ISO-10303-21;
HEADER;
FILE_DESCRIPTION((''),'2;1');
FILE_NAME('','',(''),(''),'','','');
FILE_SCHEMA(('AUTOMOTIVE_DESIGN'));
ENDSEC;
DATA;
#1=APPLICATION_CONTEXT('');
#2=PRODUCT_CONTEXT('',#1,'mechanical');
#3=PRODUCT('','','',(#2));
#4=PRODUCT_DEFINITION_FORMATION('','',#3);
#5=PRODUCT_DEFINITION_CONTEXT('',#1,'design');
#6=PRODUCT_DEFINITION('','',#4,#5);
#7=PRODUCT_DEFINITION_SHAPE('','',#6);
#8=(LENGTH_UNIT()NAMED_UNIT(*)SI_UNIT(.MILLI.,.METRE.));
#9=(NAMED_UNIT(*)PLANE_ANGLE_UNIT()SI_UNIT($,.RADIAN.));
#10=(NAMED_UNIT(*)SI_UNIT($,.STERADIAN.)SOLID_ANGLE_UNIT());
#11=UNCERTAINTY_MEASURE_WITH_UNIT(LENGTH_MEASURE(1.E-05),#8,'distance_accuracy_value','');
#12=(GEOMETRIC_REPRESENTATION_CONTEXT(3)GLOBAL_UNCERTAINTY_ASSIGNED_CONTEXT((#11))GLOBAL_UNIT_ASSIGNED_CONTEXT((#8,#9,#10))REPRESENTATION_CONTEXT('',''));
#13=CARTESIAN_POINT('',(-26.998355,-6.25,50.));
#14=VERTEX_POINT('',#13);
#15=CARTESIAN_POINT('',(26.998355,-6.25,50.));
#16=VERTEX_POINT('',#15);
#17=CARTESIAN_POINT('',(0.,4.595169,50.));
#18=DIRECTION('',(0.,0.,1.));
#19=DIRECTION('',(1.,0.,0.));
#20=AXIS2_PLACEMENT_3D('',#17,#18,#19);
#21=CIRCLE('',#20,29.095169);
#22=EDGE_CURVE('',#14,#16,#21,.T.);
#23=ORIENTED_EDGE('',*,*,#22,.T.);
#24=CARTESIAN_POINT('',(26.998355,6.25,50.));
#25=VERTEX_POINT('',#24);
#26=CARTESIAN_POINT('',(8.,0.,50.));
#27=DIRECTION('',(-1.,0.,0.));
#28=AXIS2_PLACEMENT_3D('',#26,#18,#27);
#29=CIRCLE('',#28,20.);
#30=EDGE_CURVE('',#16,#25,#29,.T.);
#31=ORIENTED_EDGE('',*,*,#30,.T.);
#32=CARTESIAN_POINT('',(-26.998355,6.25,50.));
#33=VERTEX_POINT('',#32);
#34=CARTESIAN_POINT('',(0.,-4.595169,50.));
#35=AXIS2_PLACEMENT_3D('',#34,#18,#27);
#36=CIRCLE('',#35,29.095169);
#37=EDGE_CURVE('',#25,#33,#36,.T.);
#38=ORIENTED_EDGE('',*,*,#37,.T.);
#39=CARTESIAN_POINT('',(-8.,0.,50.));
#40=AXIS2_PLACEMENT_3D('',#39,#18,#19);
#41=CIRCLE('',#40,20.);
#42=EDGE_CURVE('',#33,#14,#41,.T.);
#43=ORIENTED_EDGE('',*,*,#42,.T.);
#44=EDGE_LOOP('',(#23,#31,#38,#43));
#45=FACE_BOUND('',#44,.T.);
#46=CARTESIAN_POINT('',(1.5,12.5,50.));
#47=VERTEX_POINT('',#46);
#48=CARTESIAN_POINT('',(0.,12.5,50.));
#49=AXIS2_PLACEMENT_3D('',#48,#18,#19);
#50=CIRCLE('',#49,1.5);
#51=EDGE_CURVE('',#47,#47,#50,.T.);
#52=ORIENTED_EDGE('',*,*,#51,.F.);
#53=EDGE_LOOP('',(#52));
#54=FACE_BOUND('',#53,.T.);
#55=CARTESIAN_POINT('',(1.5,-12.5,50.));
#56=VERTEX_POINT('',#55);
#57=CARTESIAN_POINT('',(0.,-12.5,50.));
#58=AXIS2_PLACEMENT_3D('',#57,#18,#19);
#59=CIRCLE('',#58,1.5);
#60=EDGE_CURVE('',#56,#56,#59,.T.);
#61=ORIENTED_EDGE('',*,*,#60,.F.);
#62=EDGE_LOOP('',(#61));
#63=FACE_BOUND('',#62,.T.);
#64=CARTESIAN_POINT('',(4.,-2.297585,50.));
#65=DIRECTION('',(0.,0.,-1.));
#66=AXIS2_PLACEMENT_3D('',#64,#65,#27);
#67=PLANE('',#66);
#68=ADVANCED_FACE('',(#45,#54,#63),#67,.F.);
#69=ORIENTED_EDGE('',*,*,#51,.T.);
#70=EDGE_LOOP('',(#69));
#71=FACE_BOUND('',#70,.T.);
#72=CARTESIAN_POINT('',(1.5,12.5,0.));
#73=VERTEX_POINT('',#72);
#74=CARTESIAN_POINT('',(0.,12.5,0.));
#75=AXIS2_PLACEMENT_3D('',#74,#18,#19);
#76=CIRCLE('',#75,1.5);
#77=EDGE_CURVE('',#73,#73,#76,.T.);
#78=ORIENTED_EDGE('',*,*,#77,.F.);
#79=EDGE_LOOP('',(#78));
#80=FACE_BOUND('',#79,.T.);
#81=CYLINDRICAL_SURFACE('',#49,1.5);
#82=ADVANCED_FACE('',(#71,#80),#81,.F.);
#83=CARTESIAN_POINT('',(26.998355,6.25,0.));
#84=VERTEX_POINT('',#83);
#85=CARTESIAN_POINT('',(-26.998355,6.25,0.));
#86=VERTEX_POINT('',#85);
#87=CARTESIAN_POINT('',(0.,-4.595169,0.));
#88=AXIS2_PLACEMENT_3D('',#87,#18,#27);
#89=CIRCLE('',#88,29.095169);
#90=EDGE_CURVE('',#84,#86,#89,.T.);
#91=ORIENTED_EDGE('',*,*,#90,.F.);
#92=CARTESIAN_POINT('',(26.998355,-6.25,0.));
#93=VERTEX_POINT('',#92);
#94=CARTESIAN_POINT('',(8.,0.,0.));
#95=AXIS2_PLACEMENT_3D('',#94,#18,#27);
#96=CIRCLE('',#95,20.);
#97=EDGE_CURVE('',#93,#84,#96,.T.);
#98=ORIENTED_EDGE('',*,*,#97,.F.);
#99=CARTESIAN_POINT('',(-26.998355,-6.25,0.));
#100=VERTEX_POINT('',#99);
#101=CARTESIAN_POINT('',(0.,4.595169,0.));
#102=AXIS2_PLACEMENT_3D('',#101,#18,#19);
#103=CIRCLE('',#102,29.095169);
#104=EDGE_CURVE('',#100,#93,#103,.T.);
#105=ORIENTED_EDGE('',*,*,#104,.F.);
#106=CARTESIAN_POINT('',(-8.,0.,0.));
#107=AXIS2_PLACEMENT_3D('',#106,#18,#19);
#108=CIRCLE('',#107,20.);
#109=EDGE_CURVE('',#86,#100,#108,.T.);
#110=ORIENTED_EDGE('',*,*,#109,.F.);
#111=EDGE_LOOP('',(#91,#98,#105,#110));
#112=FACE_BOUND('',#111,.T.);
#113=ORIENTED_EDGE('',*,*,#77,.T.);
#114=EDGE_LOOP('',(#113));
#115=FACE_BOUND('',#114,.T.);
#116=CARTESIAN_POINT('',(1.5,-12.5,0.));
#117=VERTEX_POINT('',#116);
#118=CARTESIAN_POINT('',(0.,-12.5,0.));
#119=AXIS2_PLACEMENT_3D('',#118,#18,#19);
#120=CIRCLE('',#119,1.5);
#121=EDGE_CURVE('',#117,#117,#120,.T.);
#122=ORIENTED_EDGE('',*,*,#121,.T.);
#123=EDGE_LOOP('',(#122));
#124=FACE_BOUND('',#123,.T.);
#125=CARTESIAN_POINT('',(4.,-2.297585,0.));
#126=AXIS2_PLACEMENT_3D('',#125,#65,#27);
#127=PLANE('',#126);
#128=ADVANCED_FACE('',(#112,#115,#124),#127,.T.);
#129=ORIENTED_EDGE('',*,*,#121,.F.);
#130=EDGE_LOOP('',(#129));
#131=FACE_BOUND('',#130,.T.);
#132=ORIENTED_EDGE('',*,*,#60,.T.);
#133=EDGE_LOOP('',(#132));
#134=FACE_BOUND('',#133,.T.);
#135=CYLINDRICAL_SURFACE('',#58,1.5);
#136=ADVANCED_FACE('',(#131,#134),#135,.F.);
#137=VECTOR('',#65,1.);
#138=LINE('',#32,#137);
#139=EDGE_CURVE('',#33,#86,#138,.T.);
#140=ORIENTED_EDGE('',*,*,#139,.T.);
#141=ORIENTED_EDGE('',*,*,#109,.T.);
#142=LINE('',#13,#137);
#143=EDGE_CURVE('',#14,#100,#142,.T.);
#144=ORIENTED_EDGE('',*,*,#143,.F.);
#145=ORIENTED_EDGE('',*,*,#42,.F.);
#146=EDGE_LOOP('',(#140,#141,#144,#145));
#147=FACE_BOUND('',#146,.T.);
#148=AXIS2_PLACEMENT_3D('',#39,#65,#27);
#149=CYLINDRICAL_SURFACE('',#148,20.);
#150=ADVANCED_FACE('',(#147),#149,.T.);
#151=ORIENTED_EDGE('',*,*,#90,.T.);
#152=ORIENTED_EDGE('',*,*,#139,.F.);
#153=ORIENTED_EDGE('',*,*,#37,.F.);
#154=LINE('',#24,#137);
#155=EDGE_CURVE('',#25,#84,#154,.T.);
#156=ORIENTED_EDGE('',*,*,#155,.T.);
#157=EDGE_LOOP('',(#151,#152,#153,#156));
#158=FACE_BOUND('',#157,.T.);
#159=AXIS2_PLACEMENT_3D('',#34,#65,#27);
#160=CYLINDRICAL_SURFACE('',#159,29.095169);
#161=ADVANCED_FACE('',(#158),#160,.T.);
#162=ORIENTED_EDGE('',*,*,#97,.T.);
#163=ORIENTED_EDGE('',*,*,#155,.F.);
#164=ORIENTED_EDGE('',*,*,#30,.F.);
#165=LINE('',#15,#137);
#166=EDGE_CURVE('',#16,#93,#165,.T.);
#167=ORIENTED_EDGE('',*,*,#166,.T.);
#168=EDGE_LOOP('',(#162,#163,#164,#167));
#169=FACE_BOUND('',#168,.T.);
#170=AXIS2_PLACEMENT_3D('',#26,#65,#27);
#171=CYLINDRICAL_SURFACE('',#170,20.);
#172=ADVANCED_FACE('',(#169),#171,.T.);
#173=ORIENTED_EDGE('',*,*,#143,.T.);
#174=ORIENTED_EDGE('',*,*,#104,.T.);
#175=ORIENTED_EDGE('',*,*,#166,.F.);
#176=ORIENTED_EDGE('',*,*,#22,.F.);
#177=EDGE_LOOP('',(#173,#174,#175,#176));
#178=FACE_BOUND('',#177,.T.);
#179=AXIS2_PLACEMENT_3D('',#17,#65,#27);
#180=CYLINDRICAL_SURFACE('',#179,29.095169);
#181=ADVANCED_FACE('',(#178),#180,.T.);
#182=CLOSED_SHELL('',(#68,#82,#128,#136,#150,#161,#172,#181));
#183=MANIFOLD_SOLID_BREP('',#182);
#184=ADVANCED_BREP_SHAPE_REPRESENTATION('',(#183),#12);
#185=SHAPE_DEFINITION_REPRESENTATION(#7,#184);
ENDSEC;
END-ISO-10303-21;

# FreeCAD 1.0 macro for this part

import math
import FreeCAD as App
import Part
import Sketcher
Q = App.Units.Quantity

doc = App.newDocument("Part")
body = doc.addObject("PartDesign::Body", "Body")

sketch1 = body.newObject("Sketcher::SketchObject", "Sketch")
sketch1.AttachmentSupport = (doc.getObject("XY_Plane"), [""])
sketch1.MapMode = "FlatFace"
sketch1.addGeometry([
    Part.ArcOfCircle(Part.Circle(App.Vector(-8, 0, 0), App.Vector(0, 0, 1), 20), math.radians(162), math.radians(198)),
    Part.ArcOfCircle(Part.Circle(App.Vector(0, 5, 0), App.Vector(0, 0, 1), 29), math.radians(-158), math.radians(-22)),
    Part.ArcOfCircle(Part.Circle(App.Vector(8, 0, 0), App.Vector(0, 0, 1), 20), math.radians(-18), math.radians(18)),
    Part.ArcOfCircle(Part.Circle(App.Vector(0, -5, 0), App.Vector(0, 0, 1), 29), math.radians(22), math.radians(158)),
], False)
sketch1.addConstraint([
    Sketcher.Constraint("Coincident", 0, 2, 1, 1),
    Sketcher.Constraint("Coincident", 1, 2, 2, 1),
    Sketcher.Constraint("Coincident", 2, 2, 3, 1),
    Sketcher.Constraint("Coincident", 3, 2, 0, 1),
    Sketcher.Constraint("Equal", 0, 2),
    Sketcher.Constraint("Equal", 1, 3),
    Sketcher.Constraint("Symmetric", 0, 3, 2, 3, -1, 1),
    Sketcher.Constraint("Symmetric", 1, 3, 3, 3, -1, 1),
    Sketcher.Constraint("Symmetric", 0, 2, 1, 2, -2),
    Sketcher.Constraint("Radius", 0, Q("20 mm")),
    Sketcher.Constraint("DistanceX", 0, 3, -1, 1, Q("8 mm")),
    Sketcher.Constraint("DistanceY", 1, 2, 2, 2, Q("12.5 mm")),
    Sketcher.Constraint("Radius", 1, Q("29.095169 mm")),
])
pad1 = body.newObject("PartDesign::Pad", "Pad")
pad1.Profile = sketch1
pad1.Length = 50

sketch2 = body.newObject("Sketcher::SketchObject", "Sketch001")
sketch2.AttachmentSupport = (doc.getObject("XY_Plane"), [""])
sketch2.MapMode = "FlatFace"
sketch2.AttachmentOffset = App.Placement(App.Vector(0, 0, 50), App.Rotation())
sketch2.addGeometry([
    Part.Circle(App.Vector(0, 12.5, 0), App.Vector(0, 0, 1), 1.5),
    Part.Circle(App.Vector(0, -12.5, 0), App.Vector(0, 0, 1), 1.5),
], False)
sketch2.addConstraint([
    Sketcher.Constraint("Equal", 0, 1),
    Sketcher.Constraint("Symmetric", 0, 3, 1, 3, -1, 1),
    Sketcher.Constraint("PointOnObject", 0, 3, -2),
    Sketcher.Constraint("Diameter", 0, Q("3 mm")),
    Sketcher.Constraint("DistanceY", 1, 3, 0, 3, Q("25 mm")),
])
doc.recompute()
hole = body.newObject("PartDesign::Hole", "Hole")
hole.Profile = sketch2
hole.ThreadType = "None"
hole.Diameter = 3
hole.DepthType = "ThroughAll"

doc.recompute()
